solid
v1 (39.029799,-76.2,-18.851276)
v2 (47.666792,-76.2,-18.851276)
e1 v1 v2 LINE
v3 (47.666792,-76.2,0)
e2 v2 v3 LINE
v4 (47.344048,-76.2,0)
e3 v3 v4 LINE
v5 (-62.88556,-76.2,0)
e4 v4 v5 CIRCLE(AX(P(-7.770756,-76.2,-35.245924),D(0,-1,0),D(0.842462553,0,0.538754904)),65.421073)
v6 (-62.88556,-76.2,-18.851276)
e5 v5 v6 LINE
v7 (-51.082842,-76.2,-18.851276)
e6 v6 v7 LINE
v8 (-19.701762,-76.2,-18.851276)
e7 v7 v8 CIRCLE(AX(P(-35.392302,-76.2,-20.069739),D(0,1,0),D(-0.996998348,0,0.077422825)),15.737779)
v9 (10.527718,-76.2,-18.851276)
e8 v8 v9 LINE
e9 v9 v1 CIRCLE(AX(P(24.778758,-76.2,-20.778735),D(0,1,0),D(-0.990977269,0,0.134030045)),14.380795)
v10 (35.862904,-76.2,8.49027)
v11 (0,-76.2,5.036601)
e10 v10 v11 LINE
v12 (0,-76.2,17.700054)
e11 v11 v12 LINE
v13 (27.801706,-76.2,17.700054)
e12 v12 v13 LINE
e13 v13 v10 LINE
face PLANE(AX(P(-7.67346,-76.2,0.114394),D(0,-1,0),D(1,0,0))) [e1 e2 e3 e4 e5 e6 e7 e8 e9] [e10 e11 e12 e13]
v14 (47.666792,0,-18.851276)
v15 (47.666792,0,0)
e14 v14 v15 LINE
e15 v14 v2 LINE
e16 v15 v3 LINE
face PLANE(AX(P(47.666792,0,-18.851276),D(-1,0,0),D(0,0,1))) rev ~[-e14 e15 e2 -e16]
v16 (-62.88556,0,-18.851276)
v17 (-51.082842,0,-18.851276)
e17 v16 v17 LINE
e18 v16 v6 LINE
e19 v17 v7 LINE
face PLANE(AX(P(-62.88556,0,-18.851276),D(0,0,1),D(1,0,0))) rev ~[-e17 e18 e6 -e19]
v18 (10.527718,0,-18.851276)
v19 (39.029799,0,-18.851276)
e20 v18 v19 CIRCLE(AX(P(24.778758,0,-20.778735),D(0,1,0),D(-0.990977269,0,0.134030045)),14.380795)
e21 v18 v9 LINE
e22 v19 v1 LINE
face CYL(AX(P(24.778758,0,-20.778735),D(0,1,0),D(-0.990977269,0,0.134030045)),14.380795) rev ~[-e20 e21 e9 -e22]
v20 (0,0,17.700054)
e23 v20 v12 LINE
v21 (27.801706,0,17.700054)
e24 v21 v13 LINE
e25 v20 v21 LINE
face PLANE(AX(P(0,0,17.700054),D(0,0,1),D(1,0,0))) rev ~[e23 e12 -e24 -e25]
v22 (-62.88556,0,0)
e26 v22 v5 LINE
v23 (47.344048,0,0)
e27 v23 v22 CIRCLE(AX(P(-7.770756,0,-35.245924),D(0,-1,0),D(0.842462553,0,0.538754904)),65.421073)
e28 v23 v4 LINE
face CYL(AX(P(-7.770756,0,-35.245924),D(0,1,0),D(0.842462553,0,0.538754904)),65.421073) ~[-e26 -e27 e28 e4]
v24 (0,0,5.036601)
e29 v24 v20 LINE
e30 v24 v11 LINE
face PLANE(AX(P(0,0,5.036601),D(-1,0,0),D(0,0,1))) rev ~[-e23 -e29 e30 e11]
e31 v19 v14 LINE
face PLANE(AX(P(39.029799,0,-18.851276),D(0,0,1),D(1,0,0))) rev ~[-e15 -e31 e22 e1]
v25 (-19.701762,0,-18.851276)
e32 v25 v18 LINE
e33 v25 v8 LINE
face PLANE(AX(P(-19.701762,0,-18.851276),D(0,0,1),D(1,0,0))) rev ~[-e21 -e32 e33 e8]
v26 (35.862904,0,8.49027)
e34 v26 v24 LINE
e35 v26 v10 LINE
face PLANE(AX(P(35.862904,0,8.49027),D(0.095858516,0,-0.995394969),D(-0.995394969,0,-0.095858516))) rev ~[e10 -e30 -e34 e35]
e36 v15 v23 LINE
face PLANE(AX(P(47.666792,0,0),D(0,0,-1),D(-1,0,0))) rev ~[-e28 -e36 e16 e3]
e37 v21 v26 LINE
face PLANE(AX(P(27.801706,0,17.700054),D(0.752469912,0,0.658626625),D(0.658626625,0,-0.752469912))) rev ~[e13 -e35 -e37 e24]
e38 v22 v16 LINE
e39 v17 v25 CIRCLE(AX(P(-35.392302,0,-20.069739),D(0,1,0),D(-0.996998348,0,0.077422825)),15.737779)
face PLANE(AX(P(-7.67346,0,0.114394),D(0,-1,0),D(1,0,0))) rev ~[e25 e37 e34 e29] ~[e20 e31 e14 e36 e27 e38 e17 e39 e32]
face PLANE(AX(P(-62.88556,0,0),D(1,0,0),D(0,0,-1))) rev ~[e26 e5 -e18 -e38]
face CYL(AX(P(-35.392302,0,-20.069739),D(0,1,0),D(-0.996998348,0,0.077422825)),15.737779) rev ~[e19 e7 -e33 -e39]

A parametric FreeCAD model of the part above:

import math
import FreeCAD as App
import Part
import Sketcher

V = App.Vector
Q = App.Units.Quantity

doc = App.newDocument("Part")
body = doc.addObject("PartDesign::Body", "Body")

sketch1 = doc.addObject("Sketcher::SketchObject", "Sketch")
body.addObject(sketch1)
sketch1.AttachmentSupport = (doc.XZ_Plane, [""])
sketch1.MapMode = "FlatFace"
sketch1.addGeometry([
    Part.LineSegment(V(47.67, 0, 0), V(47.34, 0, 0)),
    Part.ArcOfCircle(Part.Circle(V(-7.77, -35.25, 0), V(0, 0, 1), 65.42), math.radians(33), math.radians(147)),
    Part.LineSegment(V(-62.89, 0, 0), V(-62.89, -18.85, 0)),
    Part.LineSegment(V(-62.89, -18.85, 0), V(-51.08, -18.85, 0)),
    Part.ArcOfCircle(Part.Circle(V(-35.39, -20.07, 0), V(0, 0, 1), 15.74), math.radians(4), math.radians(176)),
    Part.LineSegment(V(-19.7, -18.85, 0), V(10.53, -18.85, 0)),
    Part.ArcOfCircle(Part.Circle(V(24.78, -20.78, 0), V(0, 0, 1), 14.38), math.radians(8), math.radians(172)),
    Part.LineSegment(V(39.03, -18.85, 0), V(47.67, -18.85, 0)),
    Part.LineSegment(V(47.67, -18.85, 0), V(47.67, 0, 0)),
    Part.LineSegment(V(0, 5.04, 0), V(0, 17.7, 0)),
    Part.LineSegment(V(0, 17.7, 0), V(27.8, 17.7, 0)),
    Part.LineSegment(V(27.8, 17.7, 0), V(35.86, 8.49, 0)),
    Part.LineSegment(V(35.86, 8.49, 0), V(0, 5.04, 0)),
], False)
sketch1.addConstraint([
    Sketcher.Constraint("Coincident", 0, 2, 1, 1),
    Sketcher.Constraint("Coincident", 1, 2, 2, 1),
    Sketcher.Constraint("Coincident", 2, 2, 3, 1),
    Sketcher.Constraint("Coincident", 3, 2, 4, 2),
    Sketcher.Constraint("Coincident", 4, 1, 5, 1),
    Sketcher.Constraint("Coincident", 5, 2, 6, 2),
    Sketcher.Constraint("Coincident", 6, 1, 7, 1),
    Sketcher.Constraint("Coincident", 7, 2, 8, 1),
    Sketcher.Constraint("Coincident", 8, 2, 0, 1),
    Sketcher.Constraint("Coincident", 9, 2, 10, 1),
    Sketcher.Constraint("Coincident", 10, 2, 11, 1),
    Sketcher.Constraint("Coincident", 11, 2, 12, 1),
    Sketcher.Constraint("Coincident", 12, 2, 9, 1),
    Sketcher.Constraint("Horizontal", 0),
    Sketcher.Constraint("Vertical", 2),
    Sketcher.Constraint("Horizontal", 3),
    Sketcher.Constraint("Horizontal", 5),
    Sketcher.Constraint("Horizontal", 7),
    Sketcher.Constraint("Vertical", 8),
    Sketcher.Constraint("Vertical", 9),
    Sketcher.Constraint("Horizontal", 10),
    Sketcher.Constraint("PointOnObject", 0, 2, -1),
    Sketcher.Constraint("PointOnObject", 1, 2, -1),
    Sketcher.Constraint("PointOnObject", 9, 2, -2),
    Sketcher.Constraint("Horizontal", 3, 2, 4, 1),
    Sketcher.Constraint("Horizontal", 5, 2, 6, 1),
    Sketcher.Constraint("Radius", 4, Q("15.737779 mm")),
    Sketcher.Constraint("Radius", 1, Q("65.421073 mm")),
    Sketcher.Constraint("Radius", 6, Q("14.380795 mm")),
    Sketcher.Constraint("DistanceX", 5, 1, 5, 2, Q("30.22948 mm")),
    Sketcher.Constraint("DistanceX", -1, 1, 6, 1, Q("39.029799 mm")),
    Sketcher.Constraint("DistanceY", -1, 1, 12, 2, Q("5.036601 mm")),
    Sketcher.Constraint("DistanceX", 3, 2, 6, 3, Q("75.8616 mm")),
    Sketcher.Constraint("DistanceX", 2, 2, 4, 1, Q("43.183798 mm")),
    Sketcher.Constraint("DistanceX", 10, 2, 11, 2, Q("8.061198 mm")),
    Sketcher.Constraint("DistanceX", 0, 2, 0, 1, Q("0.322744 mm")),
    Sketcher.Constraint("DistanceX", 3, 1, 3, 2, Q("11.802718 mm")),
    Sketcher.Constraint("DistanceX", 7, 1, 7, 2, Q("8.636993 mm")),
    Sketcher.Constraint("DistanceX", 10, 1, 10, 2, Q("27.801706 mm")),
    Sketcher.Constraint("DistanceY", 2, 2, 2, 1, Q("18.851276 mm")),
    Sketcher.Constraint("DistanceY", 9, 1, 9, 2, Q("12.663453 mm")),
    Sketcher.Constraint("DistanceY", -1, 1, 11, 2, Q("8.49027 mm")),
])
pad1 = doc.addObject("PartDesign::Pad", "Pad")
body.addObject(pad1)
pad1.Profile = sketch1
pad1.Length = Q("3 in")

doc.recompute()
